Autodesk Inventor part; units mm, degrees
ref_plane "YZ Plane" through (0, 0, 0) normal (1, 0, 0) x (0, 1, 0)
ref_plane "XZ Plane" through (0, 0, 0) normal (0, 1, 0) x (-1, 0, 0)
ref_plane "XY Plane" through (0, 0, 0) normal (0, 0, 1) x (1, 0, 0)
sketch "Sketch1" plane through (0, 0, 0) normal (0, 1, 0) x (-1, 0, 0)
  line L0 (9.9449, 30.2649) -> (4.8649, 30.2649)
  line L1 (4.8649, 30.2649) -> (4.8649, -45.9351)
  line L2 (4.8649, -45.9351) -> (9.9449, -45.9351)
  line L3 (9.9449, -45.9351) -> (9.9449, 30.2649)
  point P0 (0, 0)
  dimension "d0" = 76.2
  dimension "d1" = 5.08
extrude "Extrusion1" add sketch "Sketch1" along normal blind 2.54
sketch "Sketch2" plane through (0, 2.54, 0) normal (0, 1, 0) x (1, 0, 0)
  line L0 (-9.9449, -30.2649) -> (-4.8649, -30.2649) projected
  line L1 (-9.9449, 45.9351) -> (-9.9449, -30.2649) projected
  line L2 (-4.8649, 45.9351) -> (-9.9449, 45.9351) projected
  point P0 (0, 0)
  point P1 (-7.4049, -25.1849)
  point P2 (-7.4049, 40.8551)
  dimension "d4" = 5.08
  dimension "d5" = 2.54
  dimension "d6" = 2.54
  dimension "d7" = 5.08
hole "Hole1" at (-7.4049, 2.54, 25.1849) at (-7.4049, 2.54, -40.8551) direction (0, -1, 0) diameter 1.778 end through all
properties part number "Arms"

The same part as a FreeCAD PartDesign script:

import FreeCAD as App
import Part
import Sketcher
Q = App.Units.Quantity


def add_polygon(sketch, points):
    """Adds a closed chain of lines whose ends are joined by coincident constraints."""
    first, n = sketch.GeometryCount, len(points)
    for a, b in zip(points, points[1:] + points[:1]):
        sketch.addGeometry(Part.LineSegment(App.Vector(*a, 0), App.Vector(*b, 0)), False)
    for i in range(n):
        sketch.addConstraint(Sketcher.Constraint("Coincident", first + i, 2, first + (i + 1) % n, 1))

doc = App.newDocument("Part")
params = doc.addObject("Spreadsheet::Sheet", "Params")
for row, (alias, value) in enumerate([
    ("sketch1_height", "3 in"),
    ("sketch1_width", "0.2 in"),
    ("pad1_length", "0.1 in"),
    ("sketch2_diameter", "0.07 in"),
    ("hole_diameter", "0.07 in"),
], start=1):
    params.set(f"A{row}", alias)
    params.set(f"B{row}", "=" + value)
    params.setAlias(f"B{row}", alias)

body = doc.addObject("PartDesign::Body", "Body")

sketch1 = body.newObject("Sketcher::SketchObject", "Sketch")
sketch1.AttachmentSupport = (doc.getObject("XZ_Plane"), [""])
sketch1.MapMode = "FlatFace"
add_polygon(sketch1, [(-9.9449, -45.9351), (-9.9449, 30.2649), (-4.8649, 30.2649), (-4.8649, -45.9351)])
sketch1.addConstraint(Sketcher.Constraint("Vertical", 0))
sketch1.addConstraint(Sketcher.Constraint("Horizontal", 1))
sketch1.addConstraint(Sketcher.Constraint("Vertical", 2))
sketch1.addConstraint(Sketcher.Constraint("Horizontal", 3))
sketch1.addConstraint(Sketcher.Constraint("DistanceY", 0, 1, 0, 2, Q("3 in")))
sketch1.addConstraint(Sketcher.Constraint("DistanceX", 1, 1, 1, 2, Q("0.2 in")))
sketch1.addConstraint(Sketcher.Constraint("DistanceX", 0, 2, -1, 1, Q("9.945 mm")))
sketch1.addConstraint(Sketcher.Constraint("DistanceY", -1, 1, 0, 2, Q("30.265 mm")))
sketch1.setExpression("Constraints[8]", "Params.sketch1_height")
sketch1.setExpression("Constraints[9]", "Params.sketch1_width")
pad1 = body.newObject("PartDesign::Pad", "Pad")
pad1.Profile = sketch1
pad1.setExpression("Length", "Params.pad1_length")
pad1.Reversed = True

sketch2 = body.newObject("Sketcher::SketchObject", "Sketch001")
sketch2.AttachmentSupport = (doc.getObject("XZ_Plane"), [""])
sketch2.MapMode = "FlatFace"
sketch2.AttachmentOffset = App.Placement(App.Vector(0, 0, -0.1 * 25.4), App.Rotation())
sketch2.addGeometry(Part.Circle(App.Vector(-7.4049, 25.1849, 0), App.Vector(0, 0, 1), 0.889), False)
sketch2.addGeometry(Part.Circle(App.Vector(-7.4049, -40.8551, 0), App.Vector(0, 0, 1), 0.889), False)
sketch2.addConstraint(Sketcher.Constraint("Equal", 0, 1))
sketch2.addConstraint(Sketcher.Constraint("Vertical", 0, 3, 1, 3))
sketch2.addConstraint(Sketcher.Constraint("Diameter", 0, Q("0.07 in")))
sketch2.addConstraint(Sketcher.Constraint("DistanceY", 1, 3, 0, 3, Q("2.6 in")))
sketch2.addConstraint(Sketcher.Constraint("DistanceX", 0, 3, -1, 1, Q("7.405 mm")))
sketch2.addConstraint(Sketcher.Constraint("DistanceY", -1, 1, 0, 3, Q("25.185 mm")))
sketch2.setExpression("Constraints[2]", "Params.sketch2_diameter")
doc.recompute()
hole = body.newObject("PartDesign::Hole", "Hole")
hole.Profile = sketch2
hole.ThreadType = "None"
hole.setExpression("Diameter", "Params.hole_diameter")
hole.DepthType = "ThroughAll"
hole.Reversed = True

doc.recompute()
